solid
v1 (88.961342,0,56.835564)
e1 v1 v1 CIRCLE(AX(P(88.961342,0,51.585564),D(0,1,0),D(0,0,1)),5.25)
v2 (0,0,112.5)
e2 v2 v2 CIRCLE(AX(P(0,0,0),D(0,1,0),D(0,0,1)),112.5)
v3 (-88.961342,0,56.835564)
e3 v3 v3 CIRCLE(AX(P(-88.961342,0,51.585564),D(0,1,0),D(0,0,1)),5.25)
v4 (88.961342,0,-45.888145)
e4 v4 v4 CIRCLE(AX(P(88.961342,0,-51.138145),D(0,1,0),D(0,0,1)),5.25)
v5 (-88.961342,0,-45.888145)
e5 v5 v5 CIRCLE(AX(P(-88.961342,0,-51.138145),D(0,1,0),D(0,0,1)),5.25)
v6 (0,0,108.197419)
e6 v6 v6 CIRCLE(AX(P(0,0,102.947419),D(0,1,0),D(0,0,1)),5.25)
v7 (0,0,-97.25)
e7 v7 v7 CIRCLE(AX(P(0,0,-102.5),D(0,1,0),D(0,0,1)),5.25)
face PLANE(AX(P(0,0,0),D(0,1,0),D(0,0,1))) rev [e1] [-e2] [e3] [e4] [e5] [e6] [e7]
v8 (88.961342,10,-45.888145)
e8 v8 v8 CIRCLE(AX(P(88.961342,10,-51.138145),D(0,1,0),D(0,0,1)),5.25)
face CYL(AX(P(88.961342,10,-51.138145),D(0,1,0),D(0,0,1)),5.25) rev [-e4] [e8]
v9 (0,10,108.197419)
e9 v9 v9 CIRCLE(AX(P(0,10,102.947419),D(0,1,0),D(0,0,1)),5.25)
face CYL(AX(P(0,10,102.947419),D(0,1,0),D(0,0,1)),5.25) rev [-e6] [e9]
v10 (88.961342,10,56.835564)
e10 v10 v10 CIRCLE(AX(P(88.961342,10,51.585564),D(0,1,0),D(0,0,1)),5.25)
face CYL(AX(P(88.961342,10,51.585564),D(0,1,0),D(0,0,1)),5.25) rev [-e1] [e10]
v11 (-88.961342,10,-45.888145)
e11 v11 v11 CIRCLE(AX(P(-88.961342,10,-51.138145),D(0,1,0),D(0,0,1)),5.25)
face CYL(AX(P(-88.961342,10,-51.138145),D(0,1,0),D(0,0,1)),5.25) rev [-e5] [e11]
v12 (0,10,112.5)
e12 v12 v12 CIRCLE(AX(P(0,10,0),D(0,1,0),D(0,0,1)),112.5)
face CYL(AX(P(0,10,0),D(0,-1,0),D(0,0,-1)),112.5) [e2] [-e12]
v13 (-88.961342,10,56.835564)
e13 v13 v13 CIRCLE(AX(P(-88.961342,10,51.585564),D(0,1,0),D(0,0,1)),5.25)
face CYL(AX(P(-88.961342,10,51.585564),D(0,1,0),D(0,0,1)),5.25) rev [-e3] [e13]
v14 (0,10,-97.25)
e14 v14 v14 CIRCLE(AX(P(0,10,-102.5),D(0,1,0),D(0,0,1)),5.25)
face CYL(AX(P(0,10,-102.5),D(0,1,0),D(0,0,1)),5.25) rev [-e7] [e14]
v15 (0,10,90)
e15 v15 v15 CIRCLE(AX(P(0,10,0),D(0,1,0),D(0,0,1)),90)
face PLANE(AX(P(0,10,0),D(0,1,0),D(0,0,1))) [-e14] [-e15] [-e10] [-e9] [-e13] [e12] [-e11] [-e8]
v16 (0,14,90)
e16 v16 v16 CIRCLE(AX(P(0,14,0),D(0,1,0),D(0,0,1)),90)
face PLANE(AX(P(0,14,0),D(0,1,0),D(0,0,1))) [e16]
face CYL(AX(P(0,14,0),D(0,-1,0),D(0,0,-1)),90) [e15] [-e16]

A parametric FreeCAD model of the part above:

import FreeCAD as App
import Part
import Sketcher

V = App.Vector
Q = App.Units.Quantity

doc = App.newDocument("Part")
body = doc.addObject("PartDesign::Body", "Body")

sketch1 = body.newObject("Sketcher::SketchObject", "Sketch")
sketch1.AttachmentSupport = (doc.getObject("XZ_Plane"), [""])
sketch1.MapMode = "FlatFace"
sketch1.addGeometry(Part.Circle(V(0, 0, 0), V(0, 0, 1), 112), False)
sketch1.addConstraint([
    Sketcher.Constraint("Coincident", 0, 3, -1, 1),
    Sketcher.Constraint("Diameter", 0, 225.0),
])
pad1 = body.newObject("PartDesign::Pad", "Pad")
pad1.Profile = sketch1
pad1.Length = 10
pad1.Reversed = True

sketch2 = body.newObject("Sketcher::SketchObject", "Sketch001")
sketch2.AttachmentSupport = (doc.getObject("YZ_Plane"), [""])
sketch2.MapMode = "FlatFace"
sketch2.addGeometry([
    Part.LineSegment(V(-25, -102, 0), V(10, -102, 0)),
    Part.LineSegment(V(10, -102, 0), V(10, -97, 0)),
    Part.LineSegment(V(10, -97, 0), V(-22, -97, 0)),
    Part.LineSegment(V(-22, -97, 0), V(-25, -102, 0)),
], False)
sketch2.addGeometry(Part.LineSegment(V(10, -102, 0), V(-25, -102, 0)), True)
sketch2.addConstraint([
    Sketcher.Constraint("Coincident", 0, 2, 1, 1),
    Sketcher.Constraint("Coincident", 1, 2, 2, 1),
    Sketcher.Constraint("Coincident", 2, 2, 3, 1),
    Sketcher.Constraint("Coincident", 3, 2, 0, 1),
    Sketcher.Constraint("Horizontal", 0),
    Sketcher.Constraint("Vertical", 1),
    Sketcher.Constraint("Horizontal", 2),
    Sketcher.Constraint("Horizontal", 4),
    Sketcher.Constraint("Coincident", 4, 1, 0, 2),
    Sketcher.Constraint("Equal", 0, 4),
    Sketcher.Constraint("Angle", 3, Q("-121 deg")),
    Sketcher.Constraint("DistanceX", 2, 2, 2, 1, 31.5),
    Sketcher.Constraint("DistanceX", -1, 1, 0, 2, 10.0),
    Sketcher.Constraint("DistanceY", 1, 1, 1, 2, 5.25),
    Sketcher.Constraint("DistanceY", 0, 2, -1, 1, 102.5),
])
groove = body.newObject("PartDesign::Groove", "Groove")
groove.Profile = sketch2
groove.ReferenceAxis = (sketch2, ["Axis0"])
groove.Angle = 360
doc.recompute()

datumline = body.newObject("PartDesign::Line", "DatumLine")
datumline.Placement = App.Placement(V(0, 0, 0.223709), App.Rotation(V(0, 0, 1), V(0, 1, 0)))
polarpattern = body.newObject("PartDesign::PolarPattern", "PolarPattern")
polarpattern.Originals = [groove]
polarpattern.Axis = (datumline, [""])
polarpattern.Angle = 360
polarpattern.Occurrences = 6
body.Tip = polarpattern

sketch3 = body.newObject("Sketcher::SketchObject", "Sketch002")
sketch3.AttachmentSupport = (doc.getObject("XZ_Plane"), [""])
sketch3.MapMode = "FlatFace"
sketch3.AttachmentOffset = App.Placement(V(0, 0, -10), App.Rotation())
sketch3.addGeometry(Part.Circle(V(0, 0, 0), V(0, 0, 1), 90), False)
sketch3.addConstraint([
    Sketcher.Constraint("Coincident", 0, 3, -1, 1),
    Sketcher.Constraint("Diameter", 0, 180.0),
])
pad2 = body.newObject("PartDesign::Pad", "Pad001")
pad2.Profile = sketch3
pad2.Length = 4
pad2.Reversed = True

doc.recompute()
